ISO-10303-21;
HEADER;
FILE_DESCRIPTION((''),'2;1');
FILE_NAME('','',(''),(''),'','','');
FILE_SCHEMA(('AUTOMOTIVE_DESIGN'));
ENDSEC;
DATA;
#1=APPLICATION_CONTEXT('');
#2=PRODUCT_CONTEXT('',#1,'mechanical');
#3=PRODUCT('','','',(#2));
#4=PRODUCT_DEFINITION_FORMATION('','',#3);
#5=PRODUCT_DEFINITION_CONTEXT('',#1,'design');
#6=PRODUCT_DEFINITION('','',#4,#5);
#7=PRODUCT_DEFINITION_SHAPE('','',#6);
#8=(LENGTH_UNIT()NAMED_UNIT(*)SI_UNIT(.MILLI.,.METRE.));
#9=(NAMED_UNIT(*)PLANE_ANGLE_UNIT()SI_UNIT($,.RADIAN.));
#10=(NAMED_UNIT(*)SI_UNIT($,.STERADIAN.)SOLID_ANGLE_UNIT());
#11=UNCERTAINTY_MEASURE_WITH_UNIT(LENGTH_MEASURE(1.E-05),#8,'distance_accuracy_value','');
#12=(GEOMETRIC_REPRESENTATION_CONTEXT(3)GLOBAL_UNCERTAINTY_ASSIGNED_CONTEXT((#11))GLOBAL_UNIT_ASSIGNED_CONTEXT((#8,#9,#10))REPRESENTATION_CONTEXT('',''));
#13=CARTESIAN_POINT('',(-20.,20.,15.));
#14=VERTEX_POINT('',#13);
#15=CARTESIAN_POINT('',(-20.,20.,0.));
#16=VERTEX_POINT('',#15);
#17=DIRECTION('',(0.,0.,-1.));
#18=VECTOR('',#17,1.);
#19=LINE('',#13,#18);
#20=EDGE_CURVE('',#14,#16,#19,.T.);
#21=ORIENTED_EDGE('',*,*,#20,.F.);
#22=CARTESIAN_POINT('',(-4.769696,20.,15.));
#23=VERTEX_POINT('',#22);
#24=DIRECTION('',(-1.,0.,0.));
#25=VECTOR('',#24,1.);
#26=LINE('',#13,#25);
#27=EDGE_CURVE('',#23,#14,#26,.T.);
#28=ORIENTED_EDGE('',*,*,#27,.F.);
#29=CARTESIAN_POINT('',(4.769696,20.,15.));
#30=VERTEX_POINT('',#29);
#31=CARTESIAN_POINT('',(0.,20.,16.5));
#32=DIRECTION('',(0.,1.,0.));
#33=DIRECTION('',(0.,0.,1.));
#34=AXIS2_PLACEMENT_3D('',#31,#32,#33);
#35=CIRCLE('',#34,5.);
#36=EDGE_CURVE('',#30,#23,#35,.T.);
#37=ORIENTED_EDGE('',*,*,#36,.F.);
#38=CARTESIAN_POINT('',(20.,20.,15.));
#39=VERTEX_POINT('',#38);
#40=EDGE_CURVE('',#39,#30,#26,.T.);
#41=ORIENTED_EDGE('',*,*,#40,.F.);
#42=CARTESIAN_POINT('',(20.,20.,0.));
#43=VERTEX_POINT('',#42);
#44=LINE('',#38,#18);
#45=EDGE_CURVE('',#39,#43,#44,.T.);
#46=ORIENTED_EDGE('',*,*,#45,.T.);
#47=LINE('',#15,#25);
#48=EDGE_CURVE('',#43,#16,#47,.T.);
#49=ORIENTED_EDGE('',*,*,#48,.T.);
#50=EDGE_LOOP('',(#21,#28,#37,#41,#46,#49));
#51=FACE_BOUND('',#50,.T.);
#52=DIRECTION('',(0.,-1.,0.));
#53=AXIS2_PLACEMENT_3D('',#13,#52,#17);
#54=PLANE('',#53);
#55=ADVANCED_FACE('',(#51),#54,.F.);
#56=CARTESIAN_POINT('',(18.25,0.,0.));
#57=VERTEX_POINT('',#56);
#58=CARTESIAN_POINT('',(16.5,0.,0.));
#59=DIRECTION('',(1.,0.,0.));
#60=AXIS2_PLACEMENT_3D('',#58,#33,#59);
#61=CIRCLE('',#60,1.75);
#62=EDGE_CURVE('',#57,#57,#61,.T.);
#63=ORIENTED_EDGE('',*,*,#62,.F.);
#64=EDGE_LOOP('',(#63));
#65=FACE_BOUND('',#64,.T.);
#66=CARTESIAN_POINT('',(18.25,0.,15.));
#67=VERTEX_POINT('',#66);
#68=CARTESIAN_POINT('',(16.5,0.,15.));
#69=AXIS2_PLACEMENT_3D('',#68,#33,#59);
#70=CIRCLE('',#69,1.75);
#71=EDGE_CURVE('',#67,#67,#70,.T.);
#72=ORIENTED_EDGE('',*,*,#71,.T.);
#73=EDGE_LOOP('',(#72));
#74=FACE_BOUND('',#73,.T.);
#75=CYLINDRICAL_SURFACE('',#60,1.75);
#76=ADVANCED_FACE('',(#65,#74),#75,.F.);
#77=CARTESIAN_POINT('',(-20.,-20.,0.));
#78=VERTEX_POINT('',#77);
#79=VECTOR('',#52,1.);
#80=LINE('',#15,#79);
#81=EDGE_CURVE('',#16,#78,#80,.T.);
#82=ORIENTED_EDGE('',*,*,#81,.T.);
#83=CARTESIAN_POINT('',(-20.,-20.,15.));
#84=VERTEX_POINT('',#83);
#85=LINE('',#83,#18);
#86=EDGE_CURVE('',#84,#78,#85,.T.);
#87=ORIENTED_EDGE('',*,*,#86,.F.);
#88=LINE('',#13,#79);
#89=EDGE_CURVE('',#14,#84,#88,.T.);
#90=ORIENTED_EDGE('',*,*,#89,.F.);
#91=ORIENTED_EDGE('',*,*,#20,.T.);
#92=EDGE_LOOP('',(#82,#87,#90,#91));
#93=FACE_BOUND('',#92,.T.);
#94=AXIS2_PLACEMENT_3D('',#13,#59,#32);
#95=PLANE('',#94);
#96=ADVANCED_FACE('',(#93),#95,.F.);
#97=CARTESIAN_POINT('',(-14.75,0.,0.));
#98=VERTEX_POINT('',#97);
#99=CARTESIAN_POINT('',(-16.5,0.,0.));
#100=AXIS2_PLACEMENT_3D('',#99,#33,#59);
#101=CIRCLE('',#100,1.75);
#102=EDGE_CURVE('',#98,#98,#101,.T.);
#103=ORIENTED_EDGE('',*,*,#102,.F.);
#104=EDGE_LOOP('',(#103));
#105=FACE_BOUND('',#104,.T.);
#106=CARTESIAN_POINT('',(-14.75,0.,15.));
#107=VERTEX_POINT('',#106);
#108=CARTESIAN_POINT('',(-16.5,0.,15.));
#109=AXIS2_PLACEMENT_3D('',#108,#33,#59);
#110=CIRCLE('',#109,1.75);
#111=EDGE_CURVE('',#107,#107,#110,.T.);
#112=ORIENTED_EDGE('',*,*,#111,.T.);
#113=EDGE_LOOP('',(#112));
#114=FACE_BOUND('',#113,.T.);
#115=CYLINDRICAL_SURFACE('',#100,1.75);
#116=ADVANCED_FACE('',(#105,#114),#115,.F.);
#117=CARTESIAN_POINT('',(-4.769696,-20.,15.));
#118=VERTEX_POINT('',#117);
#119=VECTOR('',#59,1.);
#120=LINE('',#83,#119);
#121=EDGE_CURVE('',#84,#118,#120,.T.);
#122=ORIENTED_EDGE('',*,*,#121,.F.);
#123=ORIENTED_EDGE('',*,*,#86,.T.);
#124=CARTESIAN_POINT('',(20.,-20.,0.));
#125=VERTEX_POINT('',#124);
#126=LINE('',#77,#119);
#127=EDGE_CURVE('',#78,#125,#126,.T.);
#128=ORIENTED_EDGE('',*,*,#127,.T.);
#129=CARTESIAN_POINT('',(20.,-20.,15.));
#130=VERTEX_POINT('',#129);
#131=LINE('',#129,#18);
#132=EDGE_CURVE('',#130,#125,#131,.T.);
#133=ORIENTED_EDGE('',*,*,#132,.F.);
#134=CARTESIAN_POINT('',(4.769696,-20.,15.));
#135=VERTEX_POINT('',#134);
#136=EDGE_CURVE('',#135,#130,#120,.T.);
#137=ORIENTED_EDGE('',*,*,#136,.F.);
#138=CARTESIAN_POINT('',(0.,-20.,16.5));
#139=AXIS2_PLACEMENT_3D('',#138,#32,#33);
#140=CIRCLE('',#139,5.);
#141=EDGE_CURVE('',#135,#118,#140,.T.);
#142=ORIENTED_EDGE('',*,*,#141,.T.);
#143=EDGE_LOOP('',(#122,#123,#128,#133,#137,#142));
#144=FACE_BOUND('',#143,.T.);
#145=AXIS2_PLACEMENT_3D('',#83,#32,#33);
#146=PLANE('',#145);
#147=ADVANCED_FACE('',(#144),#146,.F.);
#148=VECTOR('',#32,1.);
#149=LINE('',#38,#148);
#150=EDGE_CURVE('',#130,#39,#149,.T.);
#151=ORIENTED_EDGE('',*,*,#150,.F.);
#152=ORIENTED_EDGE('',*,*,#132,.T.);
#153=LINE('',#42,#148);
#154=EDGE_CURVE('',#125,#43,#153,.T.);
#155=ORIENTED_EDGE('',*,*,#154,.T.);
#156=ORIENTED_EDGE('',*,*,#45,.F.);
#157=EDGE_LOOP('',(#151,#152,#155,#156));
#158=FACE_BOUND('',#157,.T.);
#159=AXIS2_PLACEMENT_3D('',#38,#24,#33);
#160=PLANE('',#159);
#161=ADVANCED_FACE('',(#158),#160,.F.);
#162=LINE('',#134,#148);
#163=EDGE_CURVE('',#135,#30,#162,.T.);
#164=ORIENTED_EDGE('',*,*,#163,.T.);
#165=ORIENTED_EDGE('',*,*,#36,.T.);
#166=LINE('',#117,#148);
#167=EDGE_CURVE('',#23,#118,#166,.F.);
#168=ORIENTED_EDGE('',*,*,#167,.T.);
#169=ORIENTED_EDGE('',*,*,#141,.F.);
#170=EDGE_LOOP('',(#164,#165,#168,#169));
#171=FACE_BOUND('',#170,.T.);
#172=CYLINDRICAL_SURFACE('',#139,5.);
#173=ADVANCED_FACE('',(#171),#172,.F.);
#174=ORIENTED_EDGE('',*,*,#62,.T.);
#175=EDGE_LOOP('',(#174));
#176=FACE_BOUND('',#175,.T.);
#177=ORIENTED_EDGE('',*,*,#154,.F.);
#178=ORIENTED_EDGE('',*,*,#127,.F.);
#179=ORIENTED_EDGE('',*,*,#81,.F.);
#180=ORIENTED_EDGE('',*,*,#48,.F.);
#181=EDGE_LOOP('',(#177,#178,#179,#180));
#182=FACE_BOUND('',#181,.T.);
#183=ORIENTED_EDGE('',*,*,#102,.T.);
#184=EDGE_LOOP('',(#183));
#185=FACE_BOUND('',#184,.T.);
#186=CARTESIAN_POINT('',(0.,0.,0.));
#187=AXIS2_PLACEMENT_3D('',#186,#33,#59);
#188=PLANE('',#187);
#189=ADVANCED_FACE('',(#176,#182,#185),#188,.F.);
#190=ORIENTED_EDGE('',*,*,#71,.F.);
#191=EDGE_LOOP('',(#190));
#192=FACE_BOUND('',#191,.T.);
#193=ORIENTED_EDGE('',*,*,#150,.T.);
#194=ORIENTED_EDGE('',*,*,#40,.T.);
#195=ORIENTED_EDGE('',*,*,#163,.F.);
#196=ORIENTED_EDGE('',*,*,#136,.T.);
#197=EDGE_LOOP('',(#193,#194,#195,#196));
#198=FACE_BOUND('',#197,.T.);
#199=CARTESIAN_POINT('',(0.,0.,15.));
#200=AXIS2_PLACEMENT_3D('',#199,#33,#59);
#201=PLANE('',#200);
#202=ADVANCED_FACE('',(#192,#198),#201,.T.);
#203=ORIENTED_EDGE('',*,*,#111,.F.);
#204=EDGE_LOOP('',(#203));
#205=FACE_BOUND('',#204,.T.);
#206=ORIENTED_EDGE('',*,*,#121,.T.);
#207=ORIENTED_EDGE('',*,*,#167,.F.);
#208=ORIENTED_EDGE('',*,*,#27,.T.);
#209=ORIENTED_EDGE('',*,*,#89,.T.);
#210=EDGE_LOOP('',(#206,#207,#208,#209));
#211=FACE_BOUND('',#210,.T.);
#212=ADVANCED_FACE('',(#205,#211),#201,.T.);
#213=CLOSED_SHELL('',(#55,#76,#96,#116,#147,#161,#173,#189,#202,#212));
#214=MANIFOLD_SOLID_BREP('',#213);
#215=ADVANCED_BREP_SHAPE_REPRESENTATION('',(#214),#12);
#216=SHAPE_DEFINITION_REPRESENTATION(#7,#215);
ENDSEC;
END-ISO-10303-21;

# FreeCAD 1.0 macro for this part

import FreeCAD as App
import Part
import Sketcher
from FreeCAD import Vector

doc = App.newDocument("Part")
body = doc.addObject("PartDesign::Body", "Body")

# Sketch on XY plane
sketch1 = body.newObject("Sketcher::SketchObject", "Sketch")
sketch1.AttachmentSupport = (doc.getObject("XY_Plane"), [""])
sketch1.MapMode = "FlatFace"
sketch1.addGeometry(Part.LineSegment(Vector(-20, 20, 0), Vector(-20, -20, 0)), False)
sketch1.addGeometry(Part.LineSegment(Vector(-20, -20, 0), Vector(20, -20, 0)), False)
sketch1.addGeometry(Part.LineSegment(Vector(20, -20, 0), Vector(20, 20, 0)), False)
sketch1.addGeometry(Part.LineSegment(Vector(20, 20, 0), Vector(-20, 20, 0)), False)
sketch1.addConstraint(Sketcher.Constraint("Coincident", 0, 2, 1, 1))
sketch1.addConstraint(Sketcher.Constraint("Coincident", 1, 2, 2, 1))
sketch1.addConstraint(Sketcher.Constraint("Coincident", 2, 2, 3, 1))
sketch1.addConstraint(Sketcher.Constraint("Coincident", 3, 2, 0, 1))
sketch1.addConstraint(Sketcher.Constraint("Vertical", 0))
sketch1.addConstraint(Sketcher.Constraint("Horizontal", 1))
sketch1.addConstraint(Sketcher.Constraint("Vertical", 2))
sketch1.addConstraint(Sketcher.Constraint("Horizontal", 3))
sketch1.addConstraint(Sketcher.Constraint("Symmetric", 0, 2, 2, 2, -1, 1))
sketch1.addConstraint(Sketcher.Constraint("Equal", 3, 0))
sketch1.addConstraint(Sketcher.Constraint("DistanceX", 1, 1, 1, 2, 40.0))
pad1 = body.newObject("PartDesign::Pad", "Pad")
pad1.Profile = sketch1
pad1.Length = 15

# Sketch on XY plane
sketch2 = body.newObject("Sketcher::SketchObject", "Sketch001")
sketch2.AttachmentSupport = (doc.getObject("XY_Plane"), [""])
sketch2.MapMode = "FlatFace"
sketch2.AttachmentOffset = App.Placement(Vector(0, 0, 15), App.Rotation())
sketch2.addGeometry(Part.Circle(Vector(-16.5, 0, 0), Vector(0, 0, 1), 1.8), False)
sketch2.addGeometry(Part.Circle(Vector(16.5, 0, 0), Vector(0, 0, 1), 1.8), False)
sketch2.addConstraint(Sketcher.Constraint("Equal", 0, 1))
sketch2.addConstraint(Sketcher.Constraint("Symmetric", 0, 3, 1, 3, -1, 1))
sketch2.addConstraint(Sketcher.Constraint("PointOnObject", 0, 3, -1))
sketch2.addConstraint(Sketcher.Constraint("Diameter", 0, 3.5))
sketch2.addConstraint(Sketcher.Constraint("DistanceX", 0, 3, 1, 3, 33.0))
pocket1 = body.newObject("PartDesign::Pocket", "Pocket")
pocket1.Profile = sketch2
pocket1.Type = "ThroughAll"

# Sketch on XZ plane
sketch3 = body.newObject("Sketcher::SketchObject", "Sketch002")
sketch3.AttachmentSupport = (doc.getObject("XZ_Plane"), [""])
sketch3.MapMode = "FlatFace"
sketch3.AttachmentOffset = App.Placement(Vector(0, 0, -20), App.Rotation())
sketch3.addGeometry(Part.Circle(Vector(0, 16, 0), Vector(0, 0, 1), 5), False)
sketch3.addConstraint(Sketcher.Constraint("PointOnObject", 0, 3, -2))
sketch3.addConstraint(Sketcher.Constraint("Diameter", 0, 10.0))
sketch3.addConstraint(Sketcher.Constraint("DistanceY", -1, 1, 0, 3, 16.5))
pocket2 = body.newObject("PartDesign::Pocket", "Pocket001")
pocket2.Profile = sketch3
pocket2.Type = "ThroughAll"
pocket2.Reversed = True

doc.recompute()
